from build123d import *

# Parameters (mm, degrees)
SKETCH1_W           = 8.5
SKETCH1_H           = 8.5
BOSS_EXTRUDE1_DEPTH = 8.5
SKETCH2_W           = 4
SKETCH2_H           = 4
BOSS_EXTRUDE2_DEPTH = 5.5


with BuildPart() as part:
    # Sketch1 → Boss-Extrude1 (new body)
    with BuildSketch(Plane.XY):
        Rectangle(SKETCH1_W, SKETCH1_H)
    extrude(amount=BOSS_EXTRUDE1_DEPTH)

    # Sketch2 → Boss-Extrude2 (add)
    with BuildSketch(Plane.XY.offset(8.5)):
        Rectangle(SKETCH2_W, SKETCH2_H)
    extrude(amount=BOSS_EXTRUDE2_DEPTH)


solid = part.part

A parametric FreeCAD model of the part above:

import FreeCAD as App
import Part
import Sketcher
Q = App.Units.Quantity

doc = App.newDocument("Part")
params = doc.addObject("Spreadsheet::Sheet", "Params")
for row, (alias, value) in enumerate([
    ("sketch1_width", "8.5 mm"),
    ("pad1_length", "8.5 mm"),
    ("sketch2_width", "4 mm"),
    ("pad2_length", "5.5 mm"),
], start=1):
    params.set(f"A{row}", alias)
    params.set(f"B{row}", "=" + value)
    params.setAlias(f"B{row}", alias)

body = doc.addObject("PartDesign::Body", "Body")

sketch1 = body.newObject("Sketcher::SketchObject", "Sketch")
sketch1.AttachmentSupport = (doc.getObject("XY_Plane"), [""])
sketch1.MapMode = "FlatFace"
sketch1.addGeometry([
    Part.LineSegment(App.Vector(-4, 4, 0), App.Vector(-4, -4, 0)),
    Part.LineSegment(App.Vector(-4, -4, 0), App.Vector(4, -4, 0)),
    Part.LineSegment(App.Vector(4, -4, 0), App.Vector(4, 4, 0)),
    Part.LineSegment(App.Vector(4, 4, 0), App.Vector(-4, 4, 0)),
], False)
sketch1.addConstraint([
    Sketcher.Constraint("Coincident", 0, 2, 1, 1),
    Sketcher.Constraint("Coincident", 1, 2, 2, 1),
    Sketcher.Constraint("Coincident", 2, 2, 3, 1),
    Sketcher.Constraint("Coincident", 3, 2, 0, 1),
    Sketcher.Constraint("Vertical", 0),
    Sketcher.Constraint("Horizontal", 1),
    Sketcher.Constraint("Vertical", 2),
    Sketcher.Constraint("Horizontal", 3),
    Sketcher.Constraint("Symmetric", 0, 2, 2, 2, -1, 1),
    Sketcher.Constraint("Equal", 3, 0),
    Sketcher.Constraint("DistanceX", 1, 1, 1, 2, Q("8.5 mm")),
])
sketch1.setExpression("Constraints[10]", "Params.sketch1_width")
pad1 = body.newObject("PartDesign::Pad", "Pad")
pad1.Profile = sketch1
pad1.setExpression("Length", "Params.pad1_length")

sketch2 = body.newObject("Sketcher::SketchObject", "Sketch001")
sketch2.AttachmentSupport = (doc.getObject("XY_Plane"), [""])
sketch2.MapMode = "FlatFace"
sketch2.AttachmentOffset = App.Placement(App.Vector(0, 0, 8.5), App.Rotation())
sketch2.addGeometry([
    Part.LineSegment(App.Vector(-2, 2, 0), App.Vector(-2, -2, 0)),
    Part.LineSegment(App.Vector(-2, -2, 0), App.Vector(2, -2, 0)),
    Part.LineSegment(App.Vector(2, -2, 0), App.Vector(2, 2, 0)),
    Part.LineSegment(App.Vector(2, 2, 0), App.Vector(-2, 2, 0)),
], False)
sketch2.addConstraint([
    Sketcher.Constraint("Coincident", 0, 2, 1, 1),
    Sketcher.Constraint("Coincident", 1, 2, 2, 1),
    Sketcher.Constraint("Coincident", 2, 2, 3, 1),
    Sketcher.Constraint("Coincident", 3, 2, 0, 1),
    Sketcher.Constraint("Vertical", 0),
    Sketcher.Constraint("Horizontal", 1),
    Sketcher.Constraint("Vertical", 2),
    Sketcher.Constraint("Horizontal", 3),
    Sketcher.Constraint("Symmetric", 0, 2, 2, 2, -1, 1),
    Sketcher.Constraint("Equal", 3, 0),
    Sketcher.Constraint("DistanceX", 1, 1, 1, 2, Q("4 mm")),
])
sketch2.setExpression("Constraints[10]", "Params.sketch2_width")
pad2 = body.newObject("PartDesign::Pad", "Pad001")
pad2.Profile = sketch2
pad2.setExpression("Length", "Params.pad2_length")

doc.recompute()
